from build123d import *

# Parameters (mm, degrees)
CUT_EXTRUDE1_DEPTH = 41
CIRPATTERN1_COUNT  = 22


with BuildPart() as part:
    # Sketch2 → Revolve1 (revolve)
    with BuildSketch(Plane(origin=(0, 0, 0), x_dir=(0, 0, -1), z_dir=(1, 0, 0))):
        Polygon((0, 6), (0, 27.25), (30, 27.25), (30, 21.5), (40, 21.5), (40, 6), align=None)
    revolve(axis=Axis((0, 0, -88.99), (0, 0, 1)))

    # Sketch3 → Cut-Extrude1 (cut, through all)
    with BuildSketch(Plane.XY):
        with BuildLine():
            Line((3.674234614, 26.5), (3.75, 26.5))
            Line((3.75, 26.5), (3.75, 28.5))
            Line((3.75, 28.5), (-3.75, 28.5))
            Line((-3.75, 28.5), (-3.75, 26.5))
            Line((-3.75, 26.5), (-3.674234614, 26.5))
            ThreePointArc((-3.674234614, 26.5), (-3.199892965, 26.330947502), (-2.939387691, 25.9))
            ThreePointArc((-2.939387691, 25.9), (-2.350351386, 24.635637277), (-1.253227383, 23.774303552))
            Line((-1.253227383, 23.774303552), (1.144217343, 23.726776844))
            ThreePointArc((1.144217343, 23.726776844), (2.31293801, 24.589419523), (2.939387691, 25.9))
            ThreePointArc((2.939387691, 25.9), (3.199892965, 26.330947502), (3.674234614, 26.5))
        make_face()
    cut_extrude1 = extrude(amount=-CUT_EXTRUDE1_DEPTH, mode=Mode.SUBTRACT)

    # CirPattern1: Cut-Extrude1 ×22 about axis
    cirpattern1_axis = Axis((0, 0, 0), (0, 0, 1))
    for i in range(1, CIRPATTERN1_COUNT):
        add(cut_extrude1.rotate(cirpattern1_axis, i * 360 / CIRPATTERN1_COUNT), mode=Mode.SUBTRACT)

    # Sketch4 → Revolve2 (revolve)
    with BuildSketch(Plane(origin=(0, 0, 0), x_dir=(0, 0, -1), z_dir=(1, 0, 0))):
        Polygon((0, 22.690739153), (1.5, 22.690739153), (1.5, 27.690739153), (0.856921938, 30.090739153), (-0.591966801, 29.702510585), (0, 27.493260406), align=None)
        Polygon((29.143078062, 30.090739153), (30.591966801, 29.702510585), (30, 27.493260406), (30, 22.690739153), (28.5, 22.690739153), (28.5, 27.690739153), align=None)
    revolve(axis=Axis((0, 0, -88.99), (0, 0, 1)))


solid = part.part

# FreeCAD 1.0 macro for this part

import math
import FreeCAD as App
import Part
import Sketcher
from FreeCAD import Vector
Q = App.Units.Quantity


def add_polygon(sketch, points):
    """Adds a closed chain of lines whose ends are joined by coincident constraints."""
    first, n = sketch.GeometryCount, len(points)
    for a, b in zip(points, points[1:] + points[:1]):
        sketch.addGeometry(Part.LineSegment(App.Vector(*a, 0), App.Vector(*b, 0)), False)
    for i in range(n):
        sketch.addConstraint(Sketcher.Constraint("Coincident", first + i, 2, first + (i + 1) % n, 1))

doc = App.newDocument("Part")
body = doc.addObject("PartDesign::Body", "Body")

# Sketch on YZ plane
sketch1 = doc.addObject("Sketcher::SketchObject", "Sketch")
body.addObject(sketch1)
sketch1.AttachmentSupport = (doc.YZ_Plane, [""])
sketch1.MapMode = "FlatFace"
add_polygon(sketch1, [(27, 0), (6, 0), (6, -40), (22, -40), (22, -30), (27, -30)])  # lines 0-5
sketch1.addConstraint([
    Sketcher.Constraint("Horizontal", 0),
    Sketcher.Constraint("Vertical", 1),
    Sketcher.Constraint("Horizontal", 2),
    Sketcher.Constraint("Vertical", 3),
    Sketcher.Constraint("Horizontal", 4),
    Sketcher.Constraint("Vertical", 5),
    Sketcher.Constraint("PointOnObject", 0, 2, -1),
    Sketcher.Constraint("DistanceY", 1, 2, 1, 1, Q("40 mm")),
    Sketcher.Constraint("DistanceY", 3, 1, 3, 2, Q("10 mm")),
    Sketcher.Constraint("DistanceX", 2, 1, 2, 2, Q("15.5 mm")),
    Sketcher.Constraint("DistanceX", -1, 1, 0, 2, Q("6 mm")),
    Sketcher.Constraint("DistanceX", 0, 2, 0, 1, Q("21.25 mm")),
])
revolution = doc.addObject("PartDesign::Revolution", "Revolution")
body.addObject(revolution)
revolution.Profile = sketch1
revolution.ReferenceAxis = (sketch1, ["V_Axis"])
revolution.Angle = 360

# Sketch on XY plane
sketch2 = doc.addObject("Sketcher::SketchObject", "Sketch001")
body.addObject(sketch2)
sketch2.AttachmentSupport = (doc.XY_Plane, [""])
sketch2.MapMode = "FlatFace"
sketch2.addGeometry([
    Part.LineSegment(Vector(3.67, 26.5, 0), Vector(3.75, 26.5, 0)),  # 0
    Part.LineSegment(Vector(3.75, 26.5, 0), Vector(3.75, 28.5, 0)),  # 1
    Part.LineSegment(Vector(3.75, 28.5, 0), Vector(-3.75, 28.5, 0)),  # 2
    Part.LineSegment(Vector(-3.75, 28.5, 0), Vector(-3.75, 26.5, 0)),  # 3
    Part.LineSegment(Vector(-3.75, 26.5, 0), Vector(-3.67, 26.5, 0)),  # 4
    Part.ArcOfCircle(Part.Circle(Vector(-3.67, 25.75, 0), Vector(0, 0, 1), 0.75), math.radians(12), math.radians(90)),  # 5
    Part.ArcOfCircle(Part.Circle(Vector(0, 26.5, 0), Vector(0, 0, 1), 3), math.radians(-168), math.radians(-115)),  # 6
    Part.LineSegment(Vector(-1.25, 23.77, 0), Vector(1.14, 23.73, 0)),  # 7
    Part.ArcOfCircle(Part.Circle(Vector(0, 26.5, 0), Vector(0, 0, 1), 3), math.radians(-68), math.radians(-12)),  # 8
    Part.ArcOfCircle(Part.Circle(Vector(3.67, 25.75, 0), Vector(0, 0, 1), 0.75), math.radians(90), math.radians(168)),  # 9
], False)
sketch2.addConstraint([
    Sketcher.Constraint("Coincident", 0, 2, 1, 1),
    Sketcher.Constraint("Coincident", 1, 2, 2, 1),
    Sketcher.Constraint("Coincident", 2, 2, 3, 1),
    Sketcher.Constraint("Coincident", 3, 2, 4, 1),
    Sketcher.Constraint("Tangent", 4, 2, 5, 2),
    Sketcher.Constraint("Tangent", 5, 1, 6, 1),
    Sketcher.Constraint("Coincident", 6, 2, 7, 1),
    Sketcher.Constraint("Coincident", 7, 2, 8, 1),
    Sketcher.Constraint("Tangent", 8, 2, 9, 2),
    Sketcher.Constraint("Tangent", 9, 1, 0, 1),
    Sketcher.Constraint("Horizontal", 0),
    Sketcher.Constraint("Vertical", 1),
    Sketcher.Constraint("Horizontal", 2),
    Sketcher.Constraint("Vertical", 3),
    Sketcher.Constraint("Horizontal", 4),
    Sketcher.Constraint("Coincident", 8, 3, 6, 3),
    Sketcher.Constraint("Equal", 6, 8),
    Sketcher.Constraint("Equal", 5, 9),
    Sketcher.Constraint("Symmetric", 5, 3, 9, 3, -2),
    Sketcher.Constraint("Horizontal", 8, 3, 0, 2),
    Sketcher.Constraint("Equal", 0, 4),
    Sketcher.Constraint("Radius", 6, Q("3 mm")),
    Sketcher.Constraint("DistanceY", 1, 1, 1, 2, Q("2 mm")),
    Sketcher.Constraint("Radius", 5, Q("0.75 mm")),
    Sketcher.Constraint("DistanceX", 2, 2, 2, 1, Q("7.5 mm")),
    Sketcher.Constraint("DistanceY", -1, 1, 6, 3, Q("26.5 mm")),
    Sketcher.Constraint("DistanceX", 5, 1, 6, 2, Q("1.68616 mm")),
    Sketcher.Constraint("DistanceX", 7, 2, 8, 2, Q("1.79517 mm")),
])
pocket1 = doc.addObject("PartDesign::Pocket", "Pocket")
body.addObject(pocket1)
pocket1.Profile = sketch2
pocket1.Type = "ThroughAll"
doc.recompute()

polarpattern = doc.addObject("PartDesign::PolarPattern", "PolarPattern")
body.addObject(polarpattern)
polarpattern.Originals = [pocket1]
polarpattern.Axis = (doc.Z_Axis, [""])
polarpattern.Angle = 360
polarpattern.Occurrences = 22
body.Tip = polarpattern

# Sketch on YZ plane
sketch3 = doc.addObject("Sketcher::SketchObject", "Sketch002")
body.addObject(sketch3)
sketch3.AttachmentSupport = (doc.YZ_Plane, [""])
sketch3.MapMode = "FlatFace"
add_polygon(sketch3, [(22.7, 0), (22.7, -1.5), (27.7, -1.5), (30.1, -0.9), (29.7, 0.6), (27.5, 0)])  # lines 0-5
add_polygon(sketch3, [(29.7, -30.6), (30.1, -29.1), (27.7, -28.5), (22.7, -28.5), (22.7, -30), (27.5, -30)])  # lines 6-11
sketch3.addConstraint([
    Sketcher.Constraint("Vertical", 0),
    Sketcher.Constraint("Horizontal", 1),
    Sketcher.Constraint("Horizontal", 5),
    Sketcher.Constraint("Horizontal", 8),
    Sketcher.Constraint("Vertical", 9),
    Sketcher.Constraint("Horizontal", 10),
    Sketcher.Constraint("PointOnObject", 4, 2, -1),
    Sketcher.Constraint("Perpendicular", 2, 3),
    Sketcher.Constraint("Perpendicular", 3, 4),
    Sketcher.Constraint("Perpendicular", 6, 7),
    Sketcher.Constraint("Parallel", 7, 11),
    Sketcher.Constraint("Vertical", 2, 2, 6, 2),
    Sketcher.Constraint("Vertical", 1, 2, 7, 2),
    Sketcher.Constraint("Vertical", 5, 2, 8, 2),
    Sketcher.Constraint("Vertical", 4, 2, 10, 2),
    Sketcher.Constraint("Vertical", 3, 2, 11, 2),
    Sketcher.Constraint("Equal", 0, 9),
    Sketcher.Constraint("DistanceX", 1, 1, 1, 2, Q("5 mm")),
    Sketcher.Constraint("Angle", 2, Q("15 deg")),
    Sketcher.Constraint("DistanceY", 0, 2, 0, 1, Q("1.5 mm")),
    Sketcher.Constraint("DistanceY", 9, 2, -1, 1, Q("30 mm")),
    Sketcher.Constraint("Distance", 3, Q("1.5 mm")),
    Sketcher.Constraint("DistanceX", 1, 2, 2, 2, Q("2.4 mm")),
    Sketcher.Constraint("DistanceX", -1, 1, 0, 2, Q("22.690739 mm")),
])
revolution2 = doc.addObject("PartDesign::Revolution", "Revolution001")
body.addObject(revolution2)
revolution2.Profile = sketch3
revolution2.ReferenceAxis = (sketch3, ["V_Axis"])
revolution2.Angle = 360

doc.recompute()
